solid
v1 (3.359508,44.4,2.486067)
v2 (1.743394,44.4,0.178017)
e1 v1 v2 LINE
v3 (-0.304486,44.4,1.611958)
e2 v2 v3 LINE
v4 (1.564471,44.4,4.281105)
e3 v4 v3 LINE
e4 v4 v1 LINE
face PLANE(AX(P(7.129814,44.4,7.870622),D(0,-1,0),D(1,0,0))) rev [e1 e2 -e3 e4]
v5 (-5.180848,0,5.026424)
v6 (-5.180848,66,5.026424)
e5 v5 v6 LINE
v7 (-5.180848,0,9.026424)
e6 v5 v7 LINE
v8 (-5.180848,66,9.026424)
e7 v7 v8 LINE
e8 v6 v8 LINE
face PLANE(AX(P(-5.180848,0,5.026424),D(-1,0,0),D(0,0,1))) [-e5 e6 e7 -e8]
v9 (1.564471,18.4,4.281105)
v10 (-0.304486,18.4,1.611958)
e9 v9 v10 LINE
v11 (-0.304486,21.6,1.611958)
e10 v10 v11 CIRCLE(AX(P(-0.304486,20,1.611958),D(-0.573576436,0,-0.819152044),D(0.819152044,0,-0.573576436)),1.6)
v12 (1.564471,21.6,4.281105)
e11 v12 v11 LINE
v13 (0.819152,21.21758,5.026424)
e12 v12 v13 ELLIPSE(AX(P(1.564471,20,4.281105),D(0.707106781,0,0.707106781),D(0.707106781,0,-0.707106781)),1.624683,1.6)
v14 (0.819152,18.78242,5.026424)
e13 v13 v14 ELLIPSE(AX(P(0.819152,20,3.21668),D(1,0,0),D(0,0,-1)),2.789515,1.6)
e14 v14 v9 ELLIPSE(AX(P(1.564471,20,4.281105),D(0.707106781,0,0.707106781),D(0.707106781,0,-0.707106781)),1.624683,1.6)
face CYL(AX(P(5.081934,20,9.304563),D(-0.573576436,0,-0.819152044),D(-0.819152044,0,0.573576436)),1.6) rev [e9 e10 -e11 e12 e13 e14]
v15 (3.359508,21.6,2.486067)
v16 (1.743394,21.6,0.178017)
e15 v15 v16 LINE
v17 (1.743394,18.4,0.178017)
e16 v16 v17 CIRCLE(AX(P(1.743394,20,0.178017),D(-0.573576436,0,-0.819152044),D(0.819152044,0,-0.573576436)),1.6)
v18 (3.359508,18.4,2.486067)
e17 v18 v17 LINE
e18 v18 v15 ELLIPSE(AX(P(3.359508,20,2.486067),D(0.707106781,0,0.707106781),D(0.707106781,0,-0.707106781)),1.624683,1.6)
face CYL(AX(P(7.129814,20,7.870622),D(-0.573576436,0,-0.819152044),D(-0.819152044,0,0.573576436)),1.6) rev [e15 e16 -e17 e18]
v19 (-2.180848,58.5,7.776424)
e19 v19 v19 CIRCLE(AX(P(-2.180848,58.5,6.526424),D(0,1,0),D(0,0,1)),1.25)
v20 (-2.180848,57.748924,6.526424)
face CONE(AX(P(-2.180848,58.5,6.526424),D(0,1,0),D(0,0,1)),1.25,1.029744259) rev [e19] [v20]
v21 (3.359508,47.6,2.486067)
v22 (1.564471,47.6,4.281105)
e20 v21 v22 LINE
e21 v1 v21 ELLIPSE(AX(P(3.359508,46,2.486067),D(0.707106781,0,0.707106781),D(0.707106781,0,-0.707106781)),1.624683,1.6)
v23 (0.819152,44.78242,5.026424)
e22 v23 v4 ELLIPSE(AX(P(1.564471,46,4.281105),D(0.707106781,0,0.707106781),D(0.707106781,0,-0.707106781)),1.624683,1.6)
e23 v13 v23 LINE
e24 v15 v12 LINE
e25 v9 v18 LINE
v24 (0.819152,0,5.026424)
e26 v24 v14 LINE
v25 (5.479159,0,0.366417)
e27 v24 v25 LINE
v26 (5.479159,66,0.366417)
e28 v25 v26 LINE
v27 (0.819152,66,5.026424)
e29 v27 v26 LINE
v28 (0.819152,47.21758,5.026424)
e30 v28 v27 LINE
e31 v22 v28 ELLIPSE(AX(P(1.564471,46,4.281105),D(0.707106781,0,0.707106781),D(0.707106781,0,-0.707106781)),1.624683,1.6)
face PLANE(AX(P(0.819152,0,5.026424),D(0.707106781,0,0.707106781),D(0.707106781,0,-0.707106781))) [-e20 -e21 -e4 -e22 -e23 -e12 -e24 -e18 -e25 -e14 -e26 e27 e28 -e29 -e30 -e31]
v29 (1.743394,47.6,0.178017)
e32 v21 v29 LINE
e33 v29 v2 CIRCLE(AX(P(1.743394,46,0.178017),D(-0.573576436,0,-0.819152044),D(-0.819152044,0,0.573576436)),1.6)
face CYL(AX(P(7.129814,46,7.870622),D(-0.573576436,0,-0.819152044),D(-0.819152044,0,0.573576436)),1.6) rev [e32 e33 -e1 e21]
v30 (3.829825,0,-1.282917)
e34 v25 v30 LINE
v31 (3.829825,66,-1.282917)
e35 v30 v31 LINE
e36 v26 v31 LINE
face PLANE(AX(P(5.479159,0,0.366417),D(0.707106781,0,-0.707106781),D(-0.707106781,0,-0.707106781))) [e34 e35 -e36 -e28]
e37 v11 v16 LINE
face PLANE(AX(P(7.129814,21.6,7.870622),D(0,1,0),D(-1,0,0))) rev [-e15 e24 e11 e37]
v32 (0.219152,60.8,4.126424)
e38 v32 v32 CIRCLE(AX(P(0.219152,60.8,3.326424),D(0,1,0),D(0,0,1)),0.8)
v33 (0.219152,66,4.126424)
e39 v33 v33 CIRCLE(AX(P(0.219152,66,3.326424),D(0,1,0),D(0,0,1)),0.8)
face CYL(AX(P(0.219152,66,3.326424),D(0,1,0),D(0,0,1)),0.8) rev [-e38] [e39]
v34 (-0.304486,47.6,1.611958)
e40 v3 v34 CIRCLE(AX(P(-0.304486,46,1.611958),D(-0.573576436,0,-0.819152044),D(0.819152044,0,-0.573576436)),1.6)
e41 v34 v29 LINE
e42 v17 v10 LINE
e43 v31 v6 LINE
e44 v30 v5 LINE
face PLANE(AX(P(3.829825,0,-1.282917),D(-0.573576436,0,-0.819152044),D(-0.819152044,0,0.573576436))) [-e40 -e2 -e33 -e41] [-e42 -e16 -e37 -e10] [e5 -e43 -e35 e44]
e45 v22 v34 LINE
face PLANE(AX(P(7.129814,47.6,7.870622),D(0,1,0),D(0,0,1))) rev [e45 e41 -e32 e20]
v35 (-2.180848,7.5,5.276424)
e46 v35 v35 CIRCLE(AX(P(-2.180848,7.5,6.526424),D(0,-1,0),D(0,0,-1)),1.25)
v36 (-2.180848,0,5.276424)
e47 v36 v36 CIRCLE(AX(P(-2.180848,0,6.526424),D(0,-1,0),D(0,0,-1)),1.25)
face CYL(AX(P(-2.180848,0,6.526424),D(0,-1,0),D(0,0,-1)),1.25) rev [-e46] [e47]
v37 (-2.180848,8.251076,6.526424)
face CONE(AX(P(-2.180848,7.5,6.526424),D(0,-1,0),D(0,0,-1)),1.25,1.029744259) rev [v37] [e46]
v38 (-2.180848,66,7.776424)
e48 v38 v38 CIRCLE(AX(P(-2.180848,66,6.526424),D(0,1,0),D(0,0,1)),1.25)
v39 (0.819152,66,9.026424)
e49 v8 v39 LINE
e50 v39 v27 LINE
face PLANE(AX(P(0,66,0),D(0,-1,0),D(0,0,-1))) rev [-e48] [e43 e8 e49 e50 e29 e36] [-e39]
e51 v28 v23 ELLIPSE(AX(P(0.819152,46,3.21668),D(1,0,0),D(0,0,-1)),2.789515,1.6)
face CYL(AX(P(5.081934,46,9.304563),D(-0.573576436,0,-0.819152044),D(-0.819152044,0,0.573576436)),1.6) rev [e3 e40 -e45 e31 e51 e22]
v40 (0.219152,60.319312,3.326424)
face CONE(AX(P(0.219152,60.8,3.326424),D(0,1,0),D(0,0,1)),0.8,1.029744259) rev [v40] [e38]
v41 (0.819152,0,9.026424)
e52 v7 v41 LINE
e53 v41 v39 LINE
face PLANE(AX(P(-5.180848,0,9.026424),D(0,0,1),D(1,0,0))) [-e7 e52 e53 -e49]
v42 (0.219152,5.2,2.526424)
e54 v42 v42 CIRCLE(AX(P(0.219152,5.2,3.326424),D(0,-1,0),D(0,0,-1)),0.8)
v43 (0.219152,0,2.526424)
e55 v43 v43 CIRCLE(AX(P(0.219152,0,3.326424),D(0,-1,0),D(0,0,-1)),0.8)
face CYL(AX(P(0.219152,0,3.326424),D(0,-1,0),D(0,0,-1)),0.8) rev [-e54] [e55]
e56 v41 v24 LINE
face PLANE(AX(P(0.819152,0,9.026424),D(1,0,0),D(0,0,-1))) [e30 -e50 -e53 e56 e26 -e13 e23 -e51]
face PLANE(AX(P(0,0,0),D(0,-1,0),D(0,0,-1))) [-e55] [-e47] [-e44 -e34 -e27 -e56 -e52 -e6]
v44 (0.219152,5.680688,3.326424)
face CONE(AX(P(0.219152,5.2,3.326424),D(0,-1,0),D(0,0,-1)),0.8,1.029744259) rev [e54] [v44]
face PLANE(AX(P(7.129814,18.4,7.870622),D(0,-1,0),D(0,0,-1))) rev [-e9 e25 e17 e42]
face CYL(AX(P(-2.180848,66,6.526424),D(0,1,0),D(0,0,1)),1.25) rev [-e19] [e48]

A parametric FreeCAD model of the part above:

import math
import FreeCAD as App
import Part
import Sketcher
from FreeCAD import Vector
Q = App.Units.Quantity


def add_polygon(sketch, points):
    """Adds a closed chain of lines whose ends are joined by coincident constraints."""
    first, n = sketch.GeometryCount, len(points)
    for a, b in zip(points, points[1:] + points[:1]):
        sketch.addGeometry(Part.LineSegment(App.Vector(*a, 0), App.Vector(*b, 0)), False)
    for i in range(n):
        sketch.addConstraint(Sketcher.Constraint("Coincident", first + i, 2, first + (i + 1) % n, 1))

doc = App.newDocument("Part")
body = doc.addObject("PartDesign::Body", "Body")

# Sketch on XZ plane
sketch1 = doc.addObject("Sketcher::SketchObject", "Sketch")
body.addObject(sketch1)
sketch1.AttachmentSupport = (doc.XZ_Plane, [""])
sketch1.MapMode = "FlatFace"
sketch1.AttachmentOffset = App.Placement(Vector(0, 0, -66), App.Rotation())
add_polygon(sketch1, [(3.8, -1.3), (-5.2, 5), (-5.2, 9), (0.8, 9), (0.8, 5), (5.5, 0.4)])  # lines 0-5
sketch1.addConstraint(Sketcher.Constraint("Vertical", 1))
sketch1.addConstraint(Sketcher.Constraint("Horizontal", 2))
sketch1.addConstraint(Sketcher.Constraint("Vertical", 3))
sketch1.addConstraint(Sketcher.Constraint("Perpendicular", 4, 5))
sketch1.addConstraint(Sketcher.Constraint("Horizontal", 0, 2, 3, 2))
sketch1.addConstraint(Sketcher.Constraint("DistanceX", 2, 1, 2, 2, Q("6 mm")))
sketch1.addConstraint(Sketcher.Constraint("DistanceY", 1, 1, 1, 2, Q("4 mm")))
sketch1.addConstraint(Sketcher.Constraint("Angle", 0, Q("145 deg")))
sketch1.addConstraint(Sketcher.Constraint("Angle", 4, Q("-45 deg")))
sketch1.addConstraint(Sketcher.Constraint("Distance", 0, Q("11 mm")))
sketch1.addConstraint(Sketcher.Constraint("DistanceX", -1, 1, 4, 2, Q("5.479159 mm")))
sketch1.addConstraint(Sketcher.Constraint("DistanceY", -1, 1, 0, 2, Q("5.026424 mm")))
pad1 = doc.addObject("PartDesign::Pad", "Pad")
body.addObject(pad1)
pad1.Profile = sketch1
pad1.Length = 66

# Sketch on XZ plane
sketch2 = doc.addObject("Sketcher::SketchObject", "Sketch001")
body.addObject(sketch2)
sketch2.AttachmentSupport = (doc.XZ_Plane, [""])
sketch2.MapMode = "FlatFace"
sketch2.addGeometry(Part.Circle(Vector(-2.2, 6.5, 0), Vector(0, 0, 1), 1.2), False)
sketch2.addConstraint(Sketcher.Constraint("Diameter", 0, Q("2.5 mm")))
sketch2.addConstraint(Sketcher.Constraint("DistanceX", 0, 3, -1, 1, Q("2.180848 mm")))
sketch2.addConstraint(Sketcher.Constraint("DistanceY", -1, 1, 0, 3, Q("6.526424 mm")))
doc.recompute()
hole = doc.addObject("PartDesign::Hole", "Hole")
body.addObject(hole)
hole.Profile = sketch2
hole.ThreadType = "None"
hole.Diameter = 2.5
hole.DepthType = "Dimension"
hole.Depth = 7.5
hole.DrillPoint = "Angled"
hole.DrillPointAngle = 118

# Sketch on XZ plane
sketch3 = doc.addObject("Sketcher::SketchObject", "Sketch002")
body.addObject(sketch3)
sketch3.AttachmentSupport = (doc.XZ_Plane, [""])
sketch3.MapMode = "FlatFace"
sketch3.addGeometry(Part.Circle(Vector(0.2, 3.3, 0), Vector(0, 0, 1), 0.8), False)
sketch3.addConstraint(Sketcher.Constraint("Diameter", 0, Q("1.6 mm")))
sketch3.addConstraint(Sketcher.Constraint("DistanceX", -1, 1, 0, 3, Q("0.219152 mm")))
sketch3.addConstraint(Sketcher.Constraint("DistanceY", -1, 1, 0, 3, Q("3.326424 mm")))
doc.recompute()
hole2 = doc.addObject("PartDesign::Hole", "Hole001")
body.addObject(hole2)
hole2.Profile = sketch3
hole2.ThreadType = "None"
hole2.Diameter = 1.6
hole2.DepthType = "Dimension"
hole2.Depth = 5.2
hole2.DrillPoint = "Angled"
hole2.DrillPointAngle = 118

# Sketch on XZ plane
sketch4 = doc.addObject("Sketcher::SketchObject", "Sketch003")
body.addObject(sketch4)
sketch4.AttachmentSupport = (doc.XZ_Plane, [""])
sketch4.MapMode = "FlatFace"
sketch4.AttachmentOffset = App.Placement(Vector(0, 0, -66), App.Rotation())
sketch4.addGeometry(Part.Circle(Vector(-2.2, 6.5, 0), Vector(0, 0, 1), 1.2), False)
sketch4.addConstraint(Sketcher.Constraint("Diameter", 0, Q("2.5 mm")))
sketch4.addConstraint(Sketcher.Constraint("DistanceX", 0, 3, -1, 1, Q("2.180848 mm")))
sketch4.addConstraint(Sketcher.Constraint("DistanceY", -1, 1, 0, 3, Q("6.526424 mm")))
doc.recompute()
hole3 = doc.addObject("PartDesign::Hole", "Hole002")
body.addObject(hole3)
hole3.Profile = sketch4
hole3.ThreadType = "None"
hole3.Diameter = 2.5
hole3.DepthType = "Dimension"
hole3.Depth = 7.5
hole3.DrillPoint = "Angled"
hole3.DrillPointAngle = 118
hole3.Reversed = True

# Sketch on XZ plane
sketch5 = doc.addObject("Sketcher::SketchObject", "Sketch004")
body.addObject(sketch5)
sketch5.AttachmentSupport = (doc.XZ_Plane, [""])
sketch5.MapMode = "FlatFace"
sketch5.AttachmentOffset = App.Placement(Vector(0, 0, -66), App.Rotation())
sketch5.addGeometry(Part.Circle(Vector(0.2, 3.3, 0), Vector(0, 0, 1), 0.8), False)
sketch5.addConstraint(Sketcher.Constraint("Diameter", 0, Q("1.6 mm")))
sketch5.addConstraint(Sketcher.Constraint("DistanceX", -1, 1, 0, 3, Q("0.219152 mm")))
sketch5.addConstraint(Sketcher.Constraint("DistanceY", -1, 1, 0, 3, Q("3.326424 mm")))
doc.recompute()
hole4 = doc.addObject("PartDesign::Hole", "Hole003")
body.addObject(hole4)
hole4.Profile = sketch5
hole4.ThreadType = "None"
hole4.Diameter = 1.6
hole4.DepthType = "Dimension"
hole4.Depth = 5.2
hole4.DrillPoint = "Angled"
hole4.DrillPointAngle = 118
hole4.Reversed = True

# Sketch on an angled plane
sketch6 = doc.addObject("Sketcher::SketchObject", "Sketch005")
body.addObject(sketch6)
sketch6.Placement = App.Placement(Vector(0.6572, 0, 0.938579), App.Rotation(Vector(-0.819152044, 0, 0.573576436), Vector(0, 0.999999999, 0), Vector(-0.573576436, 0, -0.819152044), "ZXY"))
sketch6.addGeometry(Part.LineSegment(Vector(-1.3, 44.4, 0), Vector(1.2, 44.4, 0)), False)
sketch6.addGeometry(Part.ArcOfCircle(Part.Circle(Vector(1.2, 46, 0), Vector(0, 0, 1), 1.6), math.radians(-90), math.radians(90)), False)
sketch6.addGeometry(Part.LineSegment(Vector(1.2, 47.6, 0), Vector(-1.3, 47.6, 0)), False)
sketch6.addGeometry(Part.ArcOfCircle(Part.Circle(Vector(-1.3, 46, 0), Vector(0, 0, 1), 1.6), math.radians(90), math.radians(270)), False)
sketch6.addGeometry(Part.LineSegment(Vector(-1.3, 18.4, 0), Vector(1.2, 18.4, 0)), False)
sketch6.addGeometry(Part.ArcOfCircle(Part.Circle(Vector(1.2, 20, 0), Vector(0, 0, 1), 1.6), math.radians(-90), math.radians(90)), False)
sketch6.addGeometry(Part.LineSegment(Vector(1.2, 21.6, 0), Vector(-1.3, 21.6, 0)), False)
sketch6.addGeometry(Part.ArcOfCircle(Part.Circle(Vector(-1.3, 20, 0), Vector(0, 0, 1), 1.6), math.radians(90), math.radians(270)), False)
sketch6.addConstraint(Sketcher.Constraint("Tangent", 0, 2, 1, 1))
sketch6.addConstraint(Sketcher.Constraint("Tangent", 1, 2, 2, 1))
sketch6.addConstraint(Sketcher.Constraint("Tangent", 2, 2, 3, 1))
sketch6.addConstraint(Sketcher.Constraint("Tangent", 3, 2, 0, 1))
sketch6.addConstraint(Sketcher.Constraint("Tangent", 4, 2, 5, 1))
sketch6.addConstraint(Sketcher.Constraint("Tangent", 5, 2, 6, 1))
sketch6.addConstraint(Sketcher.Constraint("Tangent", 6, 2, 7, 1))
sketch6.addConstraint(Sketcher.Constraint("Tangent", 7, 2, 4, 1))
sketch6.addConstraint(Sketcher.Constraint("Horizontal", 0))
sketch6.addConstraint(Sketcher.Constraint("Horizontal", 2))
sketch6.addConstraint(Sketcher.Constraint("Horizontal", 4))
sketch6.addConstraint(Sketcher.Constraint("Horizontal", 6))
sketch6.addConstraint(Sketcher.Constraint("Equal", 3, 5))
sketch6.addConstraint(Sketcher.Constraint("Vertical", 1, 3, 5, 3))
sketch6.addConstraint(Sketcher.Constraint("Vertical", 3, 3, 7, 3))
sketch6.addConstraint(Sketcher.Constraint("Radius", 1, Q("1.6 mm")))
sketch6.addConstraint(Sketcher.Constraint("DistanceX", 0, 1, 0, 2, Q("2.5 mm")))
sketch6.addConstraint(Sketcher.Constraint("DistanceY", -1, 1, 1, 3, Q("46 mm")))
sketch6.addConstraint(Sketcher.Constraint("DistanceY", -1, 1, 5, 3, Q("20 mm")))
sketch6.addConstraint(Sketcher.Constraint("DistanceX", -1, 1, 1, 3, Q("1.174002 mm")))
pocket1 = doc.addObject("PartDesign::Pocket", "Pocket")
body.addObject(pocket1)
pocket1.Profile = sketch6
pocket1.Type = "ThroughAll"

doc.recompute()
